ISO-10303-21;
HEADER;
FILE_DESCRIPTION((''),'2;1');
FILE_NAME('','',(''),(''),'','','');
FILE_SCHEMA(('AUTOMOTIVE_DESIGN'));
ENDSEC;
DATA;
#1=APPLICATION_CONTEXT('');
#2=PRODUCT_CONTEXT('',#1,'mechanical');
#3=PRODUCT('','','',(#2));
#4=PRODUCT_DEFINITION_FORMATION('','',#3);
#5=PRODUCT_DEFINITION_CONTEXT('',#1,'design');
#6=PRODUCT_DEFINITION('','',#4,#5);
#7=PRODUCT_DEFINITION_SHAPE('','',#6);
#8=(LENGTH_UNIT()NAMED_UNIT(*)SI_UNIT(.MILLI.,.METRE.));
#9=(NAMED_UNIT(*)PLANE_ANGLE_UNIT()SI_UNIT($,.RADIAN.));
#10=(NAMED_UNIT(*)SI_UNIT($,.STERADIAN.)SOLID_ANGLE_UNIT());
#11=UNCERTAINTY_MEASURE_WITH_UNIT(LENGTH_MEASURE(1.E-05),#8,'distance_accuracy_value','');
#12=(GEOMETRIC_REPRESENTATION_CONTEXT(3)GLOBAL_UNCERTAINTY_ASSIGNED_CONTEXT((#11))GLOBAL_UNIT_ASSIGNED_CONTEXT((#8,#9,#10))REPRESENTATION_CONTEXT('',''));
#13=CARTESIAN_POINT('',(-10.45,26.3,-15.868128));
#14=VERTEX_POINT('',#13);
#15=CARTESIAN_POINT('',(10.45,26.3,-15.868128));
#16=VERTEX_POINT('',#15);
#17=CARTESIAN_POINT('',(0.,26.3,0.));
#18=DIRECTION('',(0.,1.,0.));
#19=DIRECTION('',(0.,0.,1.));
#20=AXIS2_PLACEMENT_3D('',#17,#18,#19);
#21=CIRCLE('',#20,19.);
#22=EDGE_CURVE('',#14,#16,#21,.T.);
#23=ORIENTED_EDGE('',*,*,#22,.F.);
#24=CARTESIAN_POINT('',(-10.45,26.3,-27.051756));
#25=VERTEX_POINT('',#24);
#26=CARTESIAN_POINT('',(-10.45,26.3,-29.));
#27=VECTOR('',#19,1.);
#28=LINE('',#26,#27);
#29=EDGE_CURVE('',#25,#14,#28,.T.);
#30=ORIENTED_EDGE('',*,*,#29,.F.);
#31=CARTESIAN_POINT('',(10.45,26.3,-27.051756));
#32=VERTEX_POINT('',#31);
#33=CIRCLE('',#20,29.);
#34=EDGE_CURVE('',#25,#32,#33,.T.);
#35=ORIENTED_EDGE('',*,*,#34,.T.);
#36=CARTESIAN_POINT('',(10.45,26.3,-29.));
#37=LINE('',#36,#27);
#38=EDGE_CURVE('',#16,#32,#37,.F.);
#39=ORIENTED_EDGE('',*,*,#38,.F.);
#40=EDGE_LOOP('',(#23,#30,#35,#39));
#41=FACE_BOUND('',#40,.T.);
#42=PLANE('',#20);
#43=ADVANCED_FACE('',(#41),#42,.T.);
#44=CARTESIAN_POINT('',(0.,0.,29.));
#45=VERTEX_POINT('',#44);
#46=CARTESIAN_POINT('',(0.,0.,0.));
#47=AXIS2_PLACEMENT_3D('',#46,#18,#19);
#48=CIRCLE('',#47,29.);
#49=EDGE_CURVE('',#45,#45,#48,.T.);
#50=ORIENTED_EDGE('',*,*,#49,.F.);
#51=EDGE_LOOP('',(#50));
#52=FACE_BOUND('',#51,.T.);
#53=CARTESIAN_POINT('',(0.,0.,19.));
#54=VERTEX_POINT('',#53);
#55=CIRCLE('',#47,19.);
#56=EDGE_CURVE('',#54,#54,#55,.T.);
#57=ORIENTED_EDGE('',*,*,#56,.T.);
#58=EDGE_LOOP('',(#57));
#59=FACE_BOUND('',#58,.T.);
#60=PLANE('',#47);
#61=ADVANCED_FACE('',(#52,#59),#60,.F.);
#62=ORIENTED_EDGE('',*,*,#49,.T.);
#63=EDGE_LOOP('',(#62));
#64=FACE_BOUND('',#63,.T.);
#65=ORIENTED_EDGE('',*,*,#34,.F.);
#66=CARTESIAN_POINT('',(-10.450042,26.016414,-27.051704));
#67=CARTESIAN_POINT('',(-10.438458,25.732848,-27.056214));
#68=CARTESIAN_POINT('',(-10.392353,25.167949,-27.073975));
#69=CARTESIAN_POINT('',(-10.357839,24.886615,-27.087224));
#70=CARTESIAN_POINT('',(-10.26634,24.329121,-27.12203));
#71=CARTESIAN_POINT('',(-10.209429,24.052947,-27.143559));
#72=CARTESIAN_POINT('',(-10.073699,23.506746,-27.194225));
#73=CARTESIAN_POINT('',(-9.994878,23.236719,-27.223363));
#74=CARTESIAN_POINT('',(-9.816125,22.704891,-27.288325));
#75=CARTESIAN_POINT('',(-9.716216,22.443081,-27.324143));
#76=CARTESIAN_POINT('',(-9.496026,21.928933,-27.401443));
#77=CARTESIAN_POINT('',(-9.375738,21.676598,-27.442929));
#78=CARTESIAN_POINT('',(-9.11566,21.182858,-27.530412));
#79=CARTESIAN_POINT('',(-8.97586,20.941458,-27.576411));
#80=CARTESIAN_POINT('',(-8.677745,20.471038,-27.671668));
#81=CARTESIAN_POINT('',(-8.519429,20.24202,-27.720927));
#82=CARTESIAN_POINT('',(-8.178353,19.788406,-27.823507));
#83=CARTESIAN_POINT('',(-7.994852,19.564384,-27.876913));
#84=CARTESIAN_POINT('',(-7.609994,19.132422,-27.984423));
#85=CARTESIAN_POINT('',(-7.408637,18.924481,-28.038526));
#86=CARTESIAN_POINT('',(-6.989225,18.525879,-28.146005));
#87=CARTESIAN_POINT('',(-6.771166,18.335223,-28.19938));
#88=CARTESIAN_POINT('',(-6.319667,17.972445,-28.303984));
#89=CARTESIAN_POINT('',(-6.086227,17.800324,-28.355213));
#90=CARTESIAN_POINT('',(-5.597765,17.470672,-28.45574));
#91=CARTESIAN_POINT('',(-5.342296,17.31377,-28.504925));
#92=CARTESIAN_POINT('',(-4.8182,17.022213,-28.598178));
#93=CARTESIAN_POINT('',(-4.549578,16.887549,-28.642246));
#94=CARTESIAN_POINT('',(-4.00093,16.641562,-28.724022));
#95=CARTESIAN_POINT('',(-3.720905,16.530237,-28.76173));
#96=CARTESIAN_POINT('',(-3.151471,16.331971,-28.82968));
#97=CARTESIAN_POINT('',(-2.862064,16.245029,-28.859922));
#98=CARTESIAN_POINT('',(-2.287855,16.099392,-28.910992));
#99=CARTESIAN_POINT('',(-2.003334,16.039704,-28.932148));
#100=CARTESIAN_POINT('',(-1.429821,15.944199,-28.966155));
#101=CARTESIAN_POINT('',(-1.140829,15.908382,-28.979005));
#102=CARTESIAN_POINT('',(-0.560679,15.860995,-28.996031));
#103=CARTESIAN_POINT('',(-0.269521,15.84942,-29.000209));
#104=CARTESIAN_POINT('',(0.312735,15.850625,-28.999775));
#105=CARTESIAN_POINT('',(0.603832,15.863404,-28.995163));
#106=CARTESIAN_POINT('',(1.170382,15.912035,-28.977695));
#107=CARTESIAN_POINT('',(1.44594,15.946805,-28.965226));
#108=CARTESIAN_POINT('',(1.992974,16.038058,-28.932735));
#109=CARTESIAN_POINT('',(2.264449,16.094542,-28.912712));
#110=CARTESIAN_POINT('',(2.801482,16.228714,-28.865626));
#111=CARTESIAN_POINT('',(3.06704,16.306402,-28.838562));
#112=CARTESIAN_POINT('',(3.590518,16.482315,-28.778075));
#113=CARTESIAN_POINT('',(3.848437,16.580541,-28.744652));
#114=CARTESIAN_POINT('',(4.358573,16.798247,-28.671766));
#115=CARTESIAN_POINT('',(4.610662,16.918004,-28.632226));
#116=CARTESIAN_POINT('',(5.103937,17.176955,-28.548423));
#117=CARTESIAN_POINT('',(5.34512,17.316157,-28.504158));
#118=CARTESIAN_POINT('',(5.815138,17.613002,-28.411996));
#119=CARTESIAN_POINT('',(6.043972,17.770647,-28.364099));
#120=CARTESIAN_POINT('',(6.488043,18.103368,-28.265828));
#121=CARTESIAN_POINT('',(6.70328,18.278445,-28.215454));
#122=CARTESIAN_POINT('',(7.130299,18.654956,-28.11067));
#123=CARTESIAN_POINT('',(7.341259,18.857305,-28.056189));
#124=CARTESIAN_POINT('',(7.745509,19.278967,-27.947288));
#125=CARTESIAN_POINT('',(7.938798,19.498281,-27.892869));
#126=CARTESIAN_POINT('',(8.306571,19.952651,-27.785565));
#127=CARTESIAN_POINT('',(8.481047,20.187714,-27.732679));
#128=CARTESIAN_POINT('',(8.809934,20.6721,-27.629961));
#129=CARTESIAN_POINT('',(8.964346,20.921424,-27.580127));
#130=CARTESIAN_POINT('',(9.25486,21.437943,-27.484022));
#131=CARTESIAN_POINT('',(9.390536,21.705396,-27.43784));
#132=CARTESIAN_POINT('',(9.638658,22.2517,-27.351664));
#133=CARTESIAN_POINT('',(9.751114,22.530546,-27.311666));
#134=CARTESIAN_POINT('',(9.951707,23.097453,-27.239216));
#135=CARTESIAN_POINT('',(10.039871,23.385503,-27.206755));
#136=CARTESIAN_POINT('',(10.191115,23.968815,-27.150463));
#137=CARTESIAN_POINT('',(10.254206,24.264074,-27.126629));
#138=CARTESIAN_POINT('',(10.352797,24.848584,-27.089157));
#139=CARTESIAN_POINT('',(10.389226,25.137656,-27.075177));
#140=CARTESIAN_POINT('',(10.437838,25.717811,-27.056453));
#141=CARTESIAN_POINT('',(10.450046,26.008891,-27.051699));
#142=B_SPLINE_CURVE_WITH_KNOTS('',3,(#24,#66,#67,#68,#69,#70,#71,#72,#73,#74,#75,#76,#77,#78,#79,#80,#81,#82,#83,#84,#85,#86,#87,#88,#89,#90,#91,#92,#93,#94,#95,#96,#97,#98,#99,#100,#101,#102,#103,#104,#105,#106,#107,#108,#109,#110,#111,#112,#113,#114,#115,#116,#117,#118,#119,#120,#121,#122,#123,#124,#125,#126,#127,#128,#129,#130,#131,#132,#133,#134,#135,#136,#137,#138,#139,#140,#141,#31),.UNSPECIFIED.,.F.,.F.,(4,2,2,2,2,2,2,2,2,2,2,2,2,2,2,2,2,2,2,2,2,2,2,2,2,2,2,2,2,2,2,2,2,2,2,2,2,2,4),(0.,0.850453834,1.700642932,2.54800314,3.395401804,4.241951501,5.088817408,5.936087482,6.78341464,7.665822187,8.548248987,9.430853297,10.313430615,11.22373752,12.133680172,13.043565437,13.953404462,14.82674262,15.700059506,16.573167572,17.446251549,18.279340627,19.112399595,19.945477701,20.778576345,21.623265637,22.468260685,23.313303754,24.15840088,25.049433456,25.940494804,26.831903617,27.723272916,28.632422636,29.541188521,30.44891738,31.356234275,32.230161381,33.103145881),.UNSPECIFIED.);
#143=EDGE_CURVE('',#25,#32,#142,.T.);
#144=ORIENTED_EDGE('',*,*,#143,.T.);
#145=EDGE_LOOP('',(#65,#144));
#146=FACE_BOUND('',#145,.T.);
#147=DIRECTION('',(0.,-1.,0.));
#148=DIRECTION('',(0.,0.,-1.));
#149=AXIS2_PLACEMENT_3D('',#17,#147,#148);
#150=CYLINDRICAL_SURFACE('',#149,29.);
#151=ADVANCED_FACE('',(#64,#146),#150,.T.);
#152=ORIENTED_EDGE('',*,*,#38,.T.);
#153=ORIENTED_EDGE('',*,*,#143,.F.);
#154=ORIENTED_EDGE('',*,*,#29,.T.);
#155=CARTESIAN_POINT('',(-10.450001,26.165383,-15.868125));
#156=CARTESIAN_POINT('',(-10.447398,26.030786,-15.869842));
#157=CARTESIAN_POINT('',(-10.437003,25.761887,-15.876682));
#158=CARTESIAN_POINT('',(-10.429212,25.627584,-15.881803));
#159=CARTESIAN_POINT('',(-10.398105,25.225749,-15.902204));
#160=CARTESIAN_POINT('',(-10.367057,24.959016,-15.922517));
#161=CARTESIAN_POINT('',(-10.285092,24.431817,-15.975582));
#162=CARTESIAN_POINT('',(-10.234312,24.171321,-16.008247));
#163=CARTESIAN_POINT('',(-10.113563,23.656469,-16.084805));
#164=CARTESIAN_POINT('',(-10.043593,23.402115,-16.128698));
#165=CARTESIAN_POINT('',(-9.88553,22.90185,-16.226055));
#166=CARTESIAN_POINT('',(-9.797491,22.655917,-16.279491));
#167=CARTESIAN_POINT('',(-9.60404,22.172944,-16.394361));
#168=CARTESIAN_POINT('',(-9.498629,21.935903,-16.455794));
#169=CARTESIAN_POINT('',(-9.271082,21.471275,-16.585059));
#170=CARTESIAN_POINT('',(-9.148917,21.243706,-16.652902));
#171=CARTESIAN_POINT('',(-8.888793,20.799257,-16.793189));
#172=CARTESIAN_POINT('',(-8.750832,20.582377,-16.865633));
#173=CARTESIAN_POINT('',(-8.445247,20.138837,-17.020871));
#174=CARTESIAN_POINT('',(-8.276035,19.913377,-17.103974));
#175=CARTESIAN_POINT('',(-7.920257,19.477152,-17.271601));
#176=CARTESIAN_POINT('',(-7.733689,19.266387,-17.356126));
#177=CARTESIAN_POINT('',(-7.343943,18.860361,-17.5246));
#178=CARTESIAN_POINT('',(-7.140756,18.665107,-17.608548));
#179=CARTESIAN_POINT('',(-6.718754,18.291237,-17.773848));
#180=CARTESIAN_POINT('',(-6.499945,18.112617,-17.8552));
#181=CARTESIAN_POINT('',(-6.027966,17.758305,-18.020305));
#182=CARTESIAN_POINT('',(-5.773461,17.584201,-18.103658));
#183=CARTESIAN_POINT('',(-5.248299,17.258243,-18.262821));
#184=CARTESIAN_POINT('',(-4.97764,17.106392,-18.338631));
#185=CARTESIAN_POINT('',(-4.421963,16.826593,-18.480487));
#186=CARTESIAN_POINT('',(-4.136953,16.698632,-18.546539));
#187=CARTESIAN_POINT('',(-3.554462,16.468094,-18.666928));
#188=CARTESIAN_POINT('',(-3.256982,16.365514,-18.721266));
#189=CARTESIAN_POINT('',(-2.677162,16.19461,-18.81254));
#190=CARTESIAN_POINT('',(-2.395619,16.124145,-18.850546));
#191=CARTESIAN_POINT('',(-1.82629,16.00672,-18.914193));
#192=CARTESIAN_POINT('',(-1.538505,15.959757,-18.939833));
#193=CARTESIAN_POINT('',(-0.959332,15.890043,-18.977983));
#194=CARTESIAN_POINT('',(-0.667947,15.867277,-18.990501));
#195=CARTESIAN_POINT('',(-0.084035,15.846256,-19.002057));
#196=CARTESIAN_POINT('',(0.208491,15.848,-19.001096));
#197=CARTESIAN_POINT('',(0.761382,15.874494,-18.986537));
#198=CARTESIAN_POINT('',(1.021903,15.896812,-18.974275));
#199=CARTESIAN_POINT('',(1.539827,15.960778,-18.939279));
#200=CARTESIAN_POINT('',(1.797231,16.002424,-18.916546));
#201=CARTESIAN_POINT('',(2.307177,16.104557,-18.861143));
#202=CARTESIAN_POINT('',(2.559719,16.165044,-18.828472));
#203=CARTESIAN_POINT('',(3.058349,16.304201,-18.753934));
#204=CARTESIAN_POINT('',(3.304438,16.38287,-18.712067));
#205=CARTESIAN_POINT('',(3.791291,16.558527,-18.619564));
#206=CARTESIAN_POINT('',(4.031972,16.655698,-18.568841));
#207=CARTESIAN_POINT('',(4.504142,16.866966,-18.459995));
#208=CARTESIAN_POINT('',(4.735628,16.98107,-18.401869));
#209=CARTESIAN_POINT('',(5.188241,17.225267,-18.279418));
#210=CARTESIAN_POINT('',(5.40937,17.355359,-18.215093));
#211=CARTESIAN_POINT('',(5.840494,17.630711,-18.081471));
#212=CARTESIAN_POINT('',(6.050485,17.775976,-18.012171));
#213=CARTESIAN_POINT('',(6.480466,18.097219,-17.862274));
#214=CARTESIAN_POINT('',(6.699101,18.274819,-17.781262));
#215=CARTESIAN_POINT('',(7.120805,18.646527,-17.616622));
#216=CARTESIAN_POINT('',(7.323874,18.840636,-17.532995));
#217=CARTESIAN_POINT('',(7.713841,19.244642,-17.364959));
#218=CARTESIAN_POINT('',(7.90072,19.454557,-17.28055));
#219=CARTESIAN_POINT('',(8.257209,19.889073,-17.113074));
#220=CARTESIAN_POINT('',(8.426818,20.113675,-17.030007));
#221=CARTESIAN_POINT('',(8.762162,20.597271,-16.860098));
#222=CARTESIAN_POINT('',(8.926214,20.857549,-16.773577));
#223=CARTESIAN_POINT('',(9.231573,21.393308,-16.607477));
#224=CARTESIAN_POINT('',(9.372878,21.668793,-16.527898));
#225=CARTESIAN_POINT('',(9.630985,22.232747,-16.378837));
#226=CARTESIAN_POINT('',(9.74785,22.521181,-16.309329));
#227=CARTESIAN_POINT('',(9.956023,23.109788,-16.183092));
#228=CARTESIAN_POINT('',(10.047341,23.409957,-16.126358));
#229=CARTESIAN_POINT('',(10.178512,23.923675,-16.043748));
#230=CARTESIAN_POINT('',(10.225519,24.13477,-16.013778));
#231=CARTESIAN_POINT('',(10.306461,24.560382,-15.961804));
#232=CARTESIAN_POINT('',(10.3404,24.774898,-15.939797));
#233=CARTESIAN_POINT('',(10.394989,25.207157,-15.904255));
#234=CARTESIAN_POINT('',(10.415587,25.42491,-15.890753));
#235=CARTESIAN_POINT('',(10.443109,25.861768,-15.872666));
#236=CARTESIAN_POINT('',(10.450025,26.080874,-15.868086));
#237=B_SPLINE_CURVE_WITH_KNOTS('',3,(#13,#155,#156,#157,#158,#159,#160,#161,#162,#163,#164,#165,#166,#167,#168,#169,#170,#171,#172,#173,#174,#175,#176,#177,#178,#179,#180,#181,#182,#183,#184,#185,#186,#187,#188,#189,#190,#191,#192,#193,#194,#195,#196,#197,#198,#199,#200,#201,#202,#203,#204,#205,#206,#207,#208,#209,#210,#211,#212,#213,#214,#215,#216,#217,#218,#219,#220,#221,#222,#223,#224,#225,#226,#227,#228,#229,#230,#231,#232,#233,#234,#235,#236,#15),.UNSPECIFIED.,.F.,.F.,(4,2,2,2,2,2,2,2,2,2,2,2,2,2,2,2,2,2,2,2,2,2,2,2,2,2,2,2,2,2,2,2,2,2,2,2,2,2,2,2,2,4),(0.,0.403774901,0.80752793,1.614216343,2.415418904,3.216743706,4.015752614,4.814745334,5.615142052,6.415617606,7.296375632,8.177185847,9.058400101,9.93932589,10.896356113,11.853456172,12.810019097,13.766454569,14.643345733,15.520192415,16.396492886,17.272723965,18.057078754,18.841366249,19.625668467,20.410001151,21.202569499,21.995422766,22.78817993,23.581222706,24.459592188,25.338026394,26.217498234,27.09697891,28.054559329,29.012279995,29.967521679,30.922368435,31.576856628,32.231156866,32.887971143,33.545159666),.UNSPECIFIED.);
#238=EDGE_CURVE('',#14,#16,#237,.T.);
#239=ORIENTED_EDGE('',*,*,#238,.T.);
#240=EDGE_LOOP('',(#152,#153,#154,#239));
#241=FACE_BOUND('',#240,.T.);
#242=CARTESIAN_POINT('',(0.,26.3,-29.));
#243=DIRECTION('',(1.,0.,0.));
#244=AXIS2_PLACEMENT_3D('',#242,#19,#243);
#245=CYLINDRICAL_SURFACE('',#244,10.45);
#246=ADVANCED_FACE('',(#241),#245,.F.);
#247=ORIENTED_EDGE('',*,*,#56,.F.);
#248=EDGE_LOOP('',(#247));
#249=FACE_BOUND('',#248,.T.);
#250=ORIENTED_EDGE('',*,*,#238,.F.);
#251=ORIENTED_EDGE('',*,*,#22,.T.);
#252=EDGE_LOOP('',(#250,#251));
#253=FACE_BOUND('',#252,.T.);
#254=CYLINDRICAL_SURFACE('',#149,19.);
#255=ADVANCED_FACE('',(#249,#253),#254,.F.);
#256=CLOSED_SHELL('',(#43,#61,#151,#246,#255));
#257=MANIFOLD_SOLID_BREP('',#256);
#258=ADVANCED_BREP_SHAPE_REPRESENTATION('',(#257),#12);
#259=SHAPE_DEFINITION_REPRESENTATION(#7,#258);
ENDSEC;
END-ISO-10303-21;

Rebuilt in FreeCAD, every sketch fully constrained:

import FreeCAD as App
import Part
import Sketcher
from FreeCAD import Vector

doc = App.newDocument("Part")
body = doc.addObject("PartDesign::Body", "Body")

# Sketch on XZ plane
sketch1 = doc.addObject("Sketcher::SketchObject", "Sketch")
body.addObject(sketch1)
sketch1.AttachmentSupport = (doc.XZ_Plane, [""])
sketch1.MapMode = "FlatFace"
sketch1.addGeometry(Part.Circle(Vector(0, 0, 0), Vector(0, 0, 1), 29), False)
sketch1.addGeometry(Part.Circle(Vector(0, 0, 0), Vector(0, 0, 1), 19), False)
sketch1.addConstraint(Sketcher.Constraint("Coincident", 0, 3, -1, 1))
sketch1.addConstraint(Sketcher.Constraint("Coincident", 1, 3, -1, 1))
sketch1.addConstraint(Sketcher.Constraint("Diameter", 0, 58.0))
sketch1.addConstraint(Sketcher.Constraint("Diameter", 1, 38.0))
pad1 = doc.addObject("PartDesign::Pad", "Pad")
body.addObject(pad1)
pad1.Profile = sketch1
pad1.Length = 26.3
pad1.Reversed = True

# Sketch on XY plane
sketch2 = doc.addObject("Sketcher::SketchObject", "Sketch001")
body.addObject(sketch2)
sketch2.AttachmentSupport = (doc.XY_Plane, [""])
sketch2.MapMode = "FlatFace"
sketch2.addGeometry(Part.Circle(Vector(0, 26, 0), Vector(0, 0, 1), 10), False)
sketch2.addConstraint(Sketcher.Constraint("PointOnObject", 0, 3, -2))
sketch2.addConstraint(Sketcher.Constraint("Diameter", 0, 20.9))
sketch2.addConstraint(Sketcher.Constraint("DistanceY", -1, 1, 0, 3, 26.3))
pocket1 = doc.addObject("PartDesign::Pocket", "Pocket")
body.addObject(pocket1)
pocket1.Profile = sketch2
pocket1.Type = "ThroughAll"

doc.recompute()
